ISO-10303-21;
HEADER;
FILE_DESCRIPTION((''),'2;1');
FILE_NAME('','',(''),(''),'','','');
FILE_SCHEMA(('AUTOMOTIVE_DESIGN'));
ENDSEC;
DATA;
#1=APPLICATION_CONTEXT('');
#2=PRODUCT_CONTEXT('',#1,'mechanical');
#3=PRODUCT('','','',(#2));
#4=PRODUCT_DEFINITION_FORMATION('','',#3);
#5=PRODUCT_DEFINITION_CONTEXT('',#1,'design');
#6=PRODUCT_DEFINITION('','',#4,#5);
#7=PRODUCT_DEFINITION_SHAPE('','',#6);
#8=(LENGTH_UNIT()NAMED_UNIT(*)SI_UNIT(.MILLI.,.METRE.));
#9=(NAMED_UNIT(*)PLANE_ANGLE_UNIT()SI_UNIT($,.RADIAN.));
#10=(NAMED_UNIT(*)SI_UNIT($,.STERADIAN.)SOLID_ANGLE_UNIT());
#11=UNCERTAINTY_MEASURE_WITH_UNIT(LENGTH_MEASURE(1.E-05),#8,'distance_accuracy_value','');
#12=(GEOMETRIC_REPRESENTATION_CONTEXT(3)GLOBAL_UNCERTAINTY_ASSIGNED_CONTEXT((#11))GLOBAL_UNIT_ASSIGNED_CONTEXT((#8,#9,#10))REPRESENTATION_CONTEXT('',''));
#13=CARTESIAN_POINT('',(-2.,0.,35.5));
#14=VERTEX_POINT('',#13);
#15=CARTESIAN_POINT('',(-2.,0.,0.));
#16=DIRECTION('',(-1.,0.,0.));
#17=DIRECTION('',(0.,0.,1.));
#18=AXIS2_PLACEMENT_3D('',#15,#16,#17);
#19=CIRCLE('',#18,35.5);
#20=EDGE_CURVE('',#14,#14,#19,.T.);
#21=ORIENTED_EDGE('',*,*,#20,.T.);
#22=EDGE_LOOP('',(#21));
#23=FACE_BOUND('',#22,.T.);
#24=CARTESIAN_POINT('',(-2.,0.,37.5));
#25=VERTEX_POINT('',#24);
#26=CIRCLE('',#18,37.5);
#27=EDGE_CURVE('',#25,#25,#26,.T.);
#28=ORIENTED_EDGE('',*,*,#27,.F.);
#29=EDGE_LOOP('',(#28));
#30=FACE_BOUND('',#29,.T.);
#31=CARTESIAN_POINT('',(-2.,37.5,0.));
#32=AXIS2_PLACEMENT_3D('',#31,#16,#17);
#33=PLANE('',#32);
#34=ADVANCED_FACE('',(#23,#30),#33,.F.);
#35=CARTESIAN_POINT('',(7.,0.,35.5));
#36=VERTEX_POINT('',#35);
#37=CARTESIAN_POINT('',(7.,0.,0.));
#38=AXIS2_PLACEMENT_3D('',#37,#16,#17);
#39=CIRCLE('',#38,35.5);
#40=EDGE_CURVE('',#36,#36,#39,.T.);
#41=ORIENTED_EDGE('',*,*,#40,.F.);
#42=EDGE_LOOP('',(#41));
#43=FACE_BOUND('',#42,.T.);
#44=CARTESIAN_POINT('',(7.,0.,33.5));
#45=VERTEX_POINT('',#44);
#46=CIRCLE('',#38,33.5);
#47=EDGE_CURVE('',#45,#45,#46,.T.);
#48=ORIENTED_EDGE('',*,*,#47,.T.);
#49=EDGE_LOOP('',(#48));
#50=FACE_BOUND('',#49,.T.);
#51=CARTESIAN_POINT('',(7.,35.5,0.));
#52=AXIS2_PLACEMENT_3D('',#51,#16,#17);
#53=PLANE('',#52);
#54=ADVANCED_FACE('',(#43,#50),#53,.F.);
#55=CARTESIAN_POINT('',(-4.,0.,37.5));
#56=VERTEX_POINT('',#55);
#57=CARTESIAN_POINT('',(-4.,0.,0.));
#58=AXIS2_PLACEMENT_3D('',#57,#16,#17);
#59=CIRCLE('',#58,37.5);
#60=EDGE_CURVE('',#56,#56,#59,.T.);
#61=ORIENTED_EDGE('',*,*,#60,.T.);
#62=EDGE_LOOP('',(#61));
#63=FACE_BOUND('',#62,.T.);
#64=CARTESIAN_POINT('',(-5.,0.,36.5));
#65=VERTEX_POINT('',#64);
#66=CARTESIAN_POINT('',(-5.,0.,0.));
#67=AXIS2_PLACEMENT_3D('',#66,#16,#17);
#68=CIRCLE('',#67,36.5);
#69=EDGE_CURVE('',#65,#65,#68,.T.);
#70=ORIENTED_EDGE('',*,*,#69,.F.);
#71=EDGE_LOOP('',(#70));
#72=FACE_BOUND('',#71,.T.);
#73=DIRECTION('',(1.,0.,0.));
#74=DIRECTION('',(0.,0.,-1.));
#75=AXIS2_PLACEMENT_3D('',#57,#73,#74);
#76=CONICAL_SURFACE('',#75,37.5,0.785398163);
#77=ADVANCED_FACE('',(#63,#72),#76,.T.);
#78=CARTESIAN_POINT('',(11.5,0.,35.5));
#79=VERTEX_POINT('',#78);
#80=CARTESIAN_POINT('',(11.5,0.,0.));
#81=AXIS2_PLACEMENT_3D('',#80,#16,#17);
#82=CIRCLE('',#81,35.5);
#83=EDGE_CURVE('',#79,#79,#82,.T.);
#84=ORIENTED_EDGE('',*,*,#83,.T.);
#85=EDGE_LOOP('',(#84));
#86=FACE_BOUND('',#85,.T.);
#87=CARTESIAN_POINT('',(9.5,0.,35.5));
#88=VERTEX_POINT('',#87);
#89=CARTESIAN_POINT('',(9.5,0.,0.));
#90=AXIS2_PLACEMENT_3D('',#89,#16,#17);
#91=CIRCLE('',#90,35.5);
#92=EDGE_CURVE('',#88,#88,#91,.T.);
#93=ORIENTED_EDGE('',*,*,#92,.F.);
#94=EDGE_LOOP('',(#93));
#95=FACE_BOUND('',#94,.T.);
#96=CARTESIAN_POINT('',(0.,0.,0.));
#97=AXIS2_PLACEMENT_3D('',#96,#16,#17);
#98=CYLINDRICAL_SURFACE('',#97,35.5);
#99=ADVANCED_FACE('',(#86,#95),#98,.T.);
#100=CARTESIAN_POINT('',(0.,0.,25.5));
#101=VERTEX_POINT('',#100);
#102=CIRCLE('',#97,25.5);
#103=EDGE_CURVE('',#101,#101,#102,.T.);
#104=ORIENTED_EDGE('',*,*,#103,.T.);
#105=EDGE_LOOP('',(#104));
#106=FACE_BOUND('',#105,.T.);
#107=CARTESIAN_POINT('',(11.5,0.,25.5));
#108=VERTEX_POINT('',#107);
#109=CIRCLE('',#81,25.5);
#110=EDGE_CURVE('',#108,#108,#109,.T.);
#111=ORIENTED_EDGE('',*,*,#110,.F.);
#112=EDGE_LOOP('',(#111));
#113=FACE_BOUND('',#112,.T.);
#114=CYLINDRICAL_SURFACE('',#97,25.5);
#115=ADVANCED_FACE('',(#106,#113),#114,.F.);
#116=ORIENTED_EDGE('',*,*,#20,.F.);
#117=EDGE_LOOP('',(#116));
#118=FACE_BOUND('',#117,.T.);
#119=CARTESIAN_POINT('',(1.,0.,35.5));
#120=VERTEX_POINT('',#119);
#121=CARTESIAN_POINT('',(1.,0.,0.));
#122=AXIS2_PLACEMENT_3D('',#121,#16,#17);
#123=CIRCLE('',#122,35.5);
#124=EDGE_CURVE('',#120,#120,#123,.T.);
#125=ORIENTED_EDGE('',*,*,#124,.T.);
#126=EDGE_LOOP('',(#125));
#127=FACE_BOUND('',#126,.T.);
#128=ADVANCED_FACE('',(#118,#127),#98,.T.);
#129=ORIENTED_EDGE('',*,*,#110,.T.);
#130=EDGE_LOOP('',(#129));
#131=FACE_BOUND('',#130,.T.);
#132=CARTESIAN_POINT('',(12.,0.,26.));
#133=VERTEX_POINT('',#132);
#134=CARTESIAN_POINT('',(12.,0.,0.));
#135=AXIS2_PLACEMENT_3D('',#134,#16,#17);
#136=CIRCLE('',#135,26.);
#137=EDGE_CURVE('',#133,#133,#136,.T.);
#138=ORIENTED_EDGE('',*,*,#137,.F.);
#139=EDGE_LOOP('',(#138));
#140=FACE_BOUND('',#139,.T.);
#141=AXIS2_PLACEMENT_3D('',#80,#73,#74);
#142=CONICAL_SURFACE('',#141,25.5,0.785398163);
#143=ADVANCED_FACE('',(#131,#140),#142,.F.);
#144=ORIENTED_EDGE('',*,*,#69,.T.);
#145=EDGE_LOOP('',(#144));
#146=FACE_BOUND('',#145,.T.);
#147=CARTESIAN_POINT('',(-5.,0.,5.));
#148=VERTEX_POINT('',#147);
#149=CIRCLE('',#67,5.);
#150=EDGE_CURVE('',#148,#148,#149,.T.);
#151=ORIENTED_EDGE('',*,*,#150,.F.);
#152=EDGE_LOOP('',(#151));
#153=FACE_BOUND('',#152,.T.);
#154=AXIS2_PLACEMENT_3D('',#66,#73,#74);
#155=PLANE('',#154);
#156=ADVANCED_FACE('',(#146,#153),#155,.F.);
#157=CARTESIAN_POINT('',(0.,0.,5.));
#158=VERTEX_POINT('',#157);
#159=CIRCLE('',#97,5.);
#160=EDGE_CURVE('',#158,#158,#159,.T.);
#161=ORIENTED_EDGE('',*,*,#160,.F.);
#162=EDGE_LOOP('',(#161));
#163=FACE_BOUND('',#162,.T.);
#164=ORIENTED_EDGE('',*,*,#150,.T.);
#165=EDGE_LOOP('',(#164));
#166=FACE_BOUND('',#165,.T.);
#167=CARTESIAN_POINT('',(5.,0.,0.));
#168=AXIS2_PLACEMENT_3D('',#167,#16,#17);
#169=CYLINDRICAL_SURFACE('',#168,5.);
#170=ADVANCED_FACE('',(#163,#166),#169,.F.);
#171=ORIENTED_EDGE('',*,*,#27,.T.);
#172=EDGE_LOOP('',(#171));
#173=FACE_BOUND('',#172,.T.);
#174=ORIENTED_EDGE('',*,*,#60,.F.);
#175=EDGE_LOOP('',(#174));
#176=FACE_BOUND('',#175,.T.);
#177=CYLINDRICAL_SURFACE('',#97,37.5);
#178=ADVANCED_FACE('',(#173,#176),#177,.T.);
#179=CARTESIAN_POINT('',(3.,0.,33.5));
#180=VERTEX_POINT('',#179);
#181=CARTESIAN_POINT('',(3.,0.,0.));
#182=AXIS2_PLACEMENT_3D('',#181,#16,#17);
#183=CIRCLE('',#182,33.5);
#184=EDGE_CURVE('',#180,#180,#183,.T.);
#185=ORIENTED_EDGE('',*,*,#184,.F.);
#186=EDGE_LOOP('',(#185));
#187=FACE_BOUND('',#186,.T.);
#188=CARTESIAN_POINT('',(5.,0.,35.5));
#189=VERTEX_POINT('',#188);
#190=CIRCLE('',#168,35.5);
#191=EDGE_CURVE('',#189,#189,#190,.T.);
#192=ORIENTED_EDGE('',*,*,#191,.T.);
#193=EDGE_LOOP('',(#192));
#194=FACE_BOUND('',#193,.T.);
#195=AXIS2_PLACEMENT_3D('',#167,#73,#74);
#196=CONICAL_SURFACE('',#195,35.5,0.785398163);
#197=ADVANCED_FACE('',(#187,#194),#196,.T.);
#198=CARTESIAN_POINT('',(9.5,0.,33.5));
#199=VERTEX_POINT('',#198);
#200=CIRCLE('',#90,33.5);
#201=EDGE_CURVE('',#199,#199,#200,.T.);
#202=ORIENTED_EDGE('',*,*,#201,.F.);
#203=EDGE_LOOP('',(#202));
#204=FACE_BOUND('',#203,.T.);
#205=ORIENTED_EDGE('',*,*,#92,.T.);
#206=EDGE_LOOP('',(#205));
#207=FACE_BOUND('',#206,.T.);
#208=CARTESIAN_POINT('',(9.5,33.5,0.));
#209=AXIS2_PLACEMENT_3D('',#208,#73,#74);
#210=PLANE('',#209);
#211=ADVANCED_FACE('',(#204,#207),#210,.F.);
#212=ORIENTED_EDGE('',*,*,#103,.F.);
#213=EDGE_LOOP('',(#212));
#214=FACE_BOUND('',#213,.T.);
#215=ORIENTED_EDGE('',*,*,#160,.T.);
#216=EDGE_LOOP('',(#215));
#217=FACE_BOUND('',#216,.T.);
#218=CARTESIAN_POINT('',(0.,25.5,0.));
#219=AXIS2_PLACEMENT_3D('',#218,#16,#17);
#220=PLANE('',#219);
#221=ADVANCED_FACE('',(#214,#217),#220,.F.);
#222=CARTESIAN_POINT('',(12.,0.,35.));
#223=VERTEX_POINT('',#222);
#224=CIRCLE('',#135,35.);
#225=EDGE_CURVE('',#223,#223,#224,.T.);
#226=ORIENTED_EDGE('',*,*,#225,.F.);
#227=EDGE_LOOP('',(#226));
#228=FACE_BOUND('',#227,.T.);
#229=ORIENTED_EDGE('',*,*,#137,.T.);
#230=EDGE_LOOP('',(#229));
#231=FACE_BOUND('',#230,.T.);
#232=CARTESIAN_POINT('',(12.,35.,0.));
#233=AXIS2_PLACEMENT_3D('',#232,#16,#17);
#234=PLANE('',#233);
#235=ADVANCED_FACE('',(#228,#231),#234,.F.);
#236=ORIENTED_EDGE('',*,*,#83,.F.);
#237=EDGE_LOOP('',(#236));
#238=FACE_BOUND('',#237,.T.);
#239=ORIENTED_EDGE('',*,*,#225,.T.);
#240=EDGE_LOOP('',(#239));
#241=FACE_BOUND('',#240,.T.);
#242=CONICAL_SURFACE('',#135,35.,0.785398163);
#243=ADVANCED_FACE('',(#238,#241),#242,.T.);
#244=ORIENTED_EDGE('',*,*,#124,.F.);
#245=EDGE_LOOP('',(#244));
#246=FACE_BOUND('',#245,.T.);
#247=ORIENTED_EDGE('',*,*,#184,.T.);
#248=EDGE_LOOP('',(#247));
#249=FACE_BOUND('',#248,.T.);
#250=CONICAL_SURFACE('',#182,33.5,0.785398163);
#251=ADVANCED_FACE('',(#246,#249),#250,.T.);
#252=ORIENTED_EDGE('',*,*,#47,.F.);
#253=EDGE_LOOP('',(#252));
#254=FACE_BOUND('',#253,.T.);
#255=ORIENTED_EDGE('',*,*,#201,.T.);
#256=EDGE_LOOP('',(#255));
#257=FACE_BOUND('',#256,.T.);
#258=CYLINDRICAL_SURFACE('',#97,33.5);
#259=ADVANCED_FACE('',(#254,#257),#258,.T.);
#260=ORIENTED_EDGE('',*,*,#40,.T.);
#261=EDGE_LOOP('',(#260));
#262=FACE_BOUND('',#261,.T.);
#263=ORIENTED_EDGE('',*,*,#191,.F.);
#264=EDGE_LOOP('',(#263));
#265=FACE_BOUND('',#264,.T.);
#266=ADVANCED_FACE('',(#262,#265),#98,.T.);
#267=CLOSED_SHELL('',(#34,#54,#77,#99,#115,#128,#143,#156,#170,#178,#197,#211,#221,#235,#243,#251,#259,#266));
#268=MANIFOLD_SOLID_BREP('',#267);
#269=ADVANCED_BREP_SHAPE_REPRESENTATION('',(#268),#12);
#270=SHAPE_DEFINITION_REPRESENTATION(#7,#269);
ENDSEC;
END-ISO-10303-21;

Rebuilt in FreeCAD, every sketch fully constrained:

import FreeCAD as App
import Part
import Sketcher

V = App.Vector

doc = App.newDocument("Part")
params = doc.addObject("Spreadsheet::Sheet", "Params")
for row, (alias, value) in enumerate([
    ("sketch1_width", "5 mm"),
    ("sketch1_width2", "2 mm"),
    ("sketch1_width3", "3 mm"),
    ("sketch1_height", "9 mm"),
    ("sketch1_width4", "11.5 mm"),
    ("revolution_angle", "360 deg"),
    ("sketch2_diameter", "10 mm"),
    ("pocket1_length", "10 mm"),
], start=1):
    params.set(f"A{row}", alias)
    params.set(f"B{row}", "=" + value)
    params.setAlias(f"B{row}", alias)

body = doc.addObject("PartDesign::Body", "Body")

# Sketch on XY plane
sketch1 = doc.addObject("Sketcher::SketchObject", "Sketch")
body.addObject(sketch1)
sketch1.AttachmentSupport = (doc.XY_Plane, [""])
sketch1.MapMode = "FlatFace"
sketch1.addGeometry([
    Part.LineSegment(V(-5, 36.5, 0), V(-5, 0, 0)),  # 0
    Part.LineSegment(V(-5, 0, 0), V(0, 0, 0)),  # 1
    Part.LineSegment(V(0, 0, 0), V(0, 25.5, 0)),  # 2
    Part.LineSegment(V(0, 25.5, 0), V(11.5, 25.5, 0)),  # 3
    Part.LineSegment(V(11.5, 25.5, 0), V(12, 26, 0)),  # 4
    Part.LineSegment(V(12, 26, 0), V(12, 35, 0)),  # 5
    Part.LineSegment(V(12, 35, 0), V(11.5, 35.5, 0)),  # 6
    Part.LineSegment(V(11.5, 35.5, 0), V(9.5, 35.5, 0)),  # 7
    Part.LineSegment(V(9.5, 35.5, 0), V(9.5, 33.5, 0)),  # 8
    Part.LineSegment(V(9.5, 33.5, 0), V(7, 33.5, 0)),  # 9
    Part.LineSegment(V(7, 33.5, 0), V(7, 35.5, 0)),  # 10
    Part.LineSegment(V(7, 35.5, 0), V(5, 35.5, 0)),  # 11
    Part.LineSegment(V(5, 35.5, 0), V(3, 33.5, 0)),  # 12
    Part.LineSegment(V(3, 33.5, 0), V(1, 35.5, 0)),  # 13
    Part.LineSegment(V(1, 35.5, 0), V(-2, 35.5, 0)),  # 14
    Part.LineSegment(V(-2, 35.5, 0), V(-2, 37.5, 0)),  # 15
    Part.LineSegment(V(-2, 37.5, 0), V(-4, 37.5, 0)),  # 16
    Part.LineSegment(V(-4, 37.5, 0), V(-5, 36.5, 0)),  # 17
], False)
sketch1.addConstraint([
    Sketcher.Constraint("Coincident", 0, 2, 1, 1),
    Sketcher.Constraint("Coincident", 1, 2, 2, 1),
    Sketcher.Constraint("Coincident", 2, 2, 3, 1),
    Sketcher.Constraint("Coincident", 3, 2, 4, 1),
    Sketcher.Constraint("Coincident", 4, 2, 5, 1),
    Sketcher.Constraint("Coincident", 5, 2, 6, 1),
    Sketcher.Constraint("Coincident", 6, 2, 7, 1),
    Sketcher.Constraint("Coincident", 7, 2, 8, 1),
    Sketcher.Constraint("Coincident", 8, 2, 9, 1),
    Sketcher.Constraint("Coincident", 9, 2, 10, 1),
    Sketcher.Constraint("Coincident", 10, 2, 11, 1),
    Sketcher.Constraint("Coincident", 11, 2, 12, 1),
    Sketcher.Constraint("Coincident", 12, 2, 13, 1),
    Sketcher.Constraint("Coincident", 13, 2, 14, 1),
    Sketcher.Constraint("Coincident", 14, 2, 15, 1),
    Sketcher.Constraint("Coincident", 15, 2, 16, 1),
    Sketcher.Constraint("Coincident", 16, 2, 17, 1),
    Sketcher.Constraint("Coincident", 17, 2, 0, 1),
    Sketcher.Constraint("Vertical", 0),
    Sketcher.Constraint("Horizontal", 1),
    Sketcher.Constraint("Vertical", 2),
    Sketcher.Constraint("Horizontal", 3),
    Sketcher.Constraint("Vertical", 5),
    Sketcher.Constraint("Horizontal", 7),
    Sketcher.Constraint("Vertical", 8),
    Sketcher.Constraint("Horizontal", 9),
    Sketcher.Constraint("Vertical", 10),
    Sketcher.Constraint("Horizontal", 11),
    Sketcher.Constraint("Horizontal", 14),
    Sketcher.Constraint("Vertical", 15),
    Sketcher.Constraint("Horizontal", 16),
    Sketcher.Constraint("Coincident", 1, 2, -1, 1),
    Sketcher.Constraint("Perpendicular", 4, 6),
    Sketcher.Constraint("Perpendicular", 6, 12),
    Sketcher.Constraint("Perpendicular", 12, 13),
    Sketcher.Constraint("Perpendicular", 13, 17),
    Sketcher.Constraint("Horizontal", 7, 2, 10, 2),
    Sketcher.Constraint("Horizontal", 9, 2, 12, 2),
    Sketcher.Constraint("Horizontal", 11, 2, 13, 2),
    Sketcher.Constraint("Vertical", 3, 2, 6, 2),
    Sketcher.Constraint("Equal", 7, 11),
    Sketcher.Constraint("Equal", 11, 16),
    Sketcher.Constraint("Equal", 16, 8),
    Sketcher.Constraint("Equal", 10, 15),
    Sketcher.Constraint("Equal", 4, 6),
    Sketcher.Constraint("DistanceX", 1, 1, 1, 2, 5.0),
    Sketcher.Constraint("DistanceX", 7, 2, 7, 1, 2.0),
    Sketcher.Constraint("DistanceX", 14, 2, 14, 1, 3.0),
    Sketcher.Constraint("DistanceY", 5, 1, 5, 2, 9.0),
    Sketcher.Constraint("DistanceX", 3, 1, 3, 2, 11.5),
    Sketcher.Constraint("DistanceX", 9, 2, 9, 1, 2.5),
    Sketcher.Constraint("DistanceY", 0, 2, 0, 1, 36.5),
    Sketcher.Constraint("DistanceY", 2, 1, 2, 2, 25.5),
])
sketch1.setExpression("Constraints[45]", "Params.sketch1_width")
sketch1.setExpression("Constraints[46]", "Params.sketch1_width2")
sketch1.setExpression("Constraints[47]", "Params.sketch1_width3")
sketch1.setExpression("Constraints[48]", "Params.sketch1_height")
sketch1.setExpression("Constraints[49]", "Params.sketch1_width4")
revolution = doc.addObject("PartDesign::Revolution", "Revolution")
body.addObject(revolution)
revolution.Profile = sketch1
revolution.ReferenceAxis = (sketch1, ["H_Axis"])
revolution.setExpression("Angle", "Params.revolution_angle")

# Sketch on YZ plane
sketch2 = doc.addObject("Sketcher::SketchObject", "Sketch001")
body.addObject(sketch2)
sketch2.AttachmentSupport = (doc.YZ_Plane, [""])
sketch2.MapMode = "FlatFace"
sketch2.AttachmentOffset = App.Placement(V(0, 0, -5), App.Rotation())
sketch2.addGeometry(Part.Circle(V(0, 0, 0), V(0, 0, 1), 5), False)
sketch2.addConstraint([
    Sketcher.Constraint("Coincident", 0, 3, -1, 1),
    Sketcher.Constraint("Diameter", 0, 10.0),
])
sketch2.setExpression("Constraints[1]", "Params.sketch2_diameter")
pocket1 = doc.addObject("PartDesign::Pocket", "Pocket")
body.addObject(pocket1)
pocket1.Profile = sketch2
pocket1.setExpression("Length", "Params.pocket1_length")
pocket1.Reversed = True

doc.recompute()
